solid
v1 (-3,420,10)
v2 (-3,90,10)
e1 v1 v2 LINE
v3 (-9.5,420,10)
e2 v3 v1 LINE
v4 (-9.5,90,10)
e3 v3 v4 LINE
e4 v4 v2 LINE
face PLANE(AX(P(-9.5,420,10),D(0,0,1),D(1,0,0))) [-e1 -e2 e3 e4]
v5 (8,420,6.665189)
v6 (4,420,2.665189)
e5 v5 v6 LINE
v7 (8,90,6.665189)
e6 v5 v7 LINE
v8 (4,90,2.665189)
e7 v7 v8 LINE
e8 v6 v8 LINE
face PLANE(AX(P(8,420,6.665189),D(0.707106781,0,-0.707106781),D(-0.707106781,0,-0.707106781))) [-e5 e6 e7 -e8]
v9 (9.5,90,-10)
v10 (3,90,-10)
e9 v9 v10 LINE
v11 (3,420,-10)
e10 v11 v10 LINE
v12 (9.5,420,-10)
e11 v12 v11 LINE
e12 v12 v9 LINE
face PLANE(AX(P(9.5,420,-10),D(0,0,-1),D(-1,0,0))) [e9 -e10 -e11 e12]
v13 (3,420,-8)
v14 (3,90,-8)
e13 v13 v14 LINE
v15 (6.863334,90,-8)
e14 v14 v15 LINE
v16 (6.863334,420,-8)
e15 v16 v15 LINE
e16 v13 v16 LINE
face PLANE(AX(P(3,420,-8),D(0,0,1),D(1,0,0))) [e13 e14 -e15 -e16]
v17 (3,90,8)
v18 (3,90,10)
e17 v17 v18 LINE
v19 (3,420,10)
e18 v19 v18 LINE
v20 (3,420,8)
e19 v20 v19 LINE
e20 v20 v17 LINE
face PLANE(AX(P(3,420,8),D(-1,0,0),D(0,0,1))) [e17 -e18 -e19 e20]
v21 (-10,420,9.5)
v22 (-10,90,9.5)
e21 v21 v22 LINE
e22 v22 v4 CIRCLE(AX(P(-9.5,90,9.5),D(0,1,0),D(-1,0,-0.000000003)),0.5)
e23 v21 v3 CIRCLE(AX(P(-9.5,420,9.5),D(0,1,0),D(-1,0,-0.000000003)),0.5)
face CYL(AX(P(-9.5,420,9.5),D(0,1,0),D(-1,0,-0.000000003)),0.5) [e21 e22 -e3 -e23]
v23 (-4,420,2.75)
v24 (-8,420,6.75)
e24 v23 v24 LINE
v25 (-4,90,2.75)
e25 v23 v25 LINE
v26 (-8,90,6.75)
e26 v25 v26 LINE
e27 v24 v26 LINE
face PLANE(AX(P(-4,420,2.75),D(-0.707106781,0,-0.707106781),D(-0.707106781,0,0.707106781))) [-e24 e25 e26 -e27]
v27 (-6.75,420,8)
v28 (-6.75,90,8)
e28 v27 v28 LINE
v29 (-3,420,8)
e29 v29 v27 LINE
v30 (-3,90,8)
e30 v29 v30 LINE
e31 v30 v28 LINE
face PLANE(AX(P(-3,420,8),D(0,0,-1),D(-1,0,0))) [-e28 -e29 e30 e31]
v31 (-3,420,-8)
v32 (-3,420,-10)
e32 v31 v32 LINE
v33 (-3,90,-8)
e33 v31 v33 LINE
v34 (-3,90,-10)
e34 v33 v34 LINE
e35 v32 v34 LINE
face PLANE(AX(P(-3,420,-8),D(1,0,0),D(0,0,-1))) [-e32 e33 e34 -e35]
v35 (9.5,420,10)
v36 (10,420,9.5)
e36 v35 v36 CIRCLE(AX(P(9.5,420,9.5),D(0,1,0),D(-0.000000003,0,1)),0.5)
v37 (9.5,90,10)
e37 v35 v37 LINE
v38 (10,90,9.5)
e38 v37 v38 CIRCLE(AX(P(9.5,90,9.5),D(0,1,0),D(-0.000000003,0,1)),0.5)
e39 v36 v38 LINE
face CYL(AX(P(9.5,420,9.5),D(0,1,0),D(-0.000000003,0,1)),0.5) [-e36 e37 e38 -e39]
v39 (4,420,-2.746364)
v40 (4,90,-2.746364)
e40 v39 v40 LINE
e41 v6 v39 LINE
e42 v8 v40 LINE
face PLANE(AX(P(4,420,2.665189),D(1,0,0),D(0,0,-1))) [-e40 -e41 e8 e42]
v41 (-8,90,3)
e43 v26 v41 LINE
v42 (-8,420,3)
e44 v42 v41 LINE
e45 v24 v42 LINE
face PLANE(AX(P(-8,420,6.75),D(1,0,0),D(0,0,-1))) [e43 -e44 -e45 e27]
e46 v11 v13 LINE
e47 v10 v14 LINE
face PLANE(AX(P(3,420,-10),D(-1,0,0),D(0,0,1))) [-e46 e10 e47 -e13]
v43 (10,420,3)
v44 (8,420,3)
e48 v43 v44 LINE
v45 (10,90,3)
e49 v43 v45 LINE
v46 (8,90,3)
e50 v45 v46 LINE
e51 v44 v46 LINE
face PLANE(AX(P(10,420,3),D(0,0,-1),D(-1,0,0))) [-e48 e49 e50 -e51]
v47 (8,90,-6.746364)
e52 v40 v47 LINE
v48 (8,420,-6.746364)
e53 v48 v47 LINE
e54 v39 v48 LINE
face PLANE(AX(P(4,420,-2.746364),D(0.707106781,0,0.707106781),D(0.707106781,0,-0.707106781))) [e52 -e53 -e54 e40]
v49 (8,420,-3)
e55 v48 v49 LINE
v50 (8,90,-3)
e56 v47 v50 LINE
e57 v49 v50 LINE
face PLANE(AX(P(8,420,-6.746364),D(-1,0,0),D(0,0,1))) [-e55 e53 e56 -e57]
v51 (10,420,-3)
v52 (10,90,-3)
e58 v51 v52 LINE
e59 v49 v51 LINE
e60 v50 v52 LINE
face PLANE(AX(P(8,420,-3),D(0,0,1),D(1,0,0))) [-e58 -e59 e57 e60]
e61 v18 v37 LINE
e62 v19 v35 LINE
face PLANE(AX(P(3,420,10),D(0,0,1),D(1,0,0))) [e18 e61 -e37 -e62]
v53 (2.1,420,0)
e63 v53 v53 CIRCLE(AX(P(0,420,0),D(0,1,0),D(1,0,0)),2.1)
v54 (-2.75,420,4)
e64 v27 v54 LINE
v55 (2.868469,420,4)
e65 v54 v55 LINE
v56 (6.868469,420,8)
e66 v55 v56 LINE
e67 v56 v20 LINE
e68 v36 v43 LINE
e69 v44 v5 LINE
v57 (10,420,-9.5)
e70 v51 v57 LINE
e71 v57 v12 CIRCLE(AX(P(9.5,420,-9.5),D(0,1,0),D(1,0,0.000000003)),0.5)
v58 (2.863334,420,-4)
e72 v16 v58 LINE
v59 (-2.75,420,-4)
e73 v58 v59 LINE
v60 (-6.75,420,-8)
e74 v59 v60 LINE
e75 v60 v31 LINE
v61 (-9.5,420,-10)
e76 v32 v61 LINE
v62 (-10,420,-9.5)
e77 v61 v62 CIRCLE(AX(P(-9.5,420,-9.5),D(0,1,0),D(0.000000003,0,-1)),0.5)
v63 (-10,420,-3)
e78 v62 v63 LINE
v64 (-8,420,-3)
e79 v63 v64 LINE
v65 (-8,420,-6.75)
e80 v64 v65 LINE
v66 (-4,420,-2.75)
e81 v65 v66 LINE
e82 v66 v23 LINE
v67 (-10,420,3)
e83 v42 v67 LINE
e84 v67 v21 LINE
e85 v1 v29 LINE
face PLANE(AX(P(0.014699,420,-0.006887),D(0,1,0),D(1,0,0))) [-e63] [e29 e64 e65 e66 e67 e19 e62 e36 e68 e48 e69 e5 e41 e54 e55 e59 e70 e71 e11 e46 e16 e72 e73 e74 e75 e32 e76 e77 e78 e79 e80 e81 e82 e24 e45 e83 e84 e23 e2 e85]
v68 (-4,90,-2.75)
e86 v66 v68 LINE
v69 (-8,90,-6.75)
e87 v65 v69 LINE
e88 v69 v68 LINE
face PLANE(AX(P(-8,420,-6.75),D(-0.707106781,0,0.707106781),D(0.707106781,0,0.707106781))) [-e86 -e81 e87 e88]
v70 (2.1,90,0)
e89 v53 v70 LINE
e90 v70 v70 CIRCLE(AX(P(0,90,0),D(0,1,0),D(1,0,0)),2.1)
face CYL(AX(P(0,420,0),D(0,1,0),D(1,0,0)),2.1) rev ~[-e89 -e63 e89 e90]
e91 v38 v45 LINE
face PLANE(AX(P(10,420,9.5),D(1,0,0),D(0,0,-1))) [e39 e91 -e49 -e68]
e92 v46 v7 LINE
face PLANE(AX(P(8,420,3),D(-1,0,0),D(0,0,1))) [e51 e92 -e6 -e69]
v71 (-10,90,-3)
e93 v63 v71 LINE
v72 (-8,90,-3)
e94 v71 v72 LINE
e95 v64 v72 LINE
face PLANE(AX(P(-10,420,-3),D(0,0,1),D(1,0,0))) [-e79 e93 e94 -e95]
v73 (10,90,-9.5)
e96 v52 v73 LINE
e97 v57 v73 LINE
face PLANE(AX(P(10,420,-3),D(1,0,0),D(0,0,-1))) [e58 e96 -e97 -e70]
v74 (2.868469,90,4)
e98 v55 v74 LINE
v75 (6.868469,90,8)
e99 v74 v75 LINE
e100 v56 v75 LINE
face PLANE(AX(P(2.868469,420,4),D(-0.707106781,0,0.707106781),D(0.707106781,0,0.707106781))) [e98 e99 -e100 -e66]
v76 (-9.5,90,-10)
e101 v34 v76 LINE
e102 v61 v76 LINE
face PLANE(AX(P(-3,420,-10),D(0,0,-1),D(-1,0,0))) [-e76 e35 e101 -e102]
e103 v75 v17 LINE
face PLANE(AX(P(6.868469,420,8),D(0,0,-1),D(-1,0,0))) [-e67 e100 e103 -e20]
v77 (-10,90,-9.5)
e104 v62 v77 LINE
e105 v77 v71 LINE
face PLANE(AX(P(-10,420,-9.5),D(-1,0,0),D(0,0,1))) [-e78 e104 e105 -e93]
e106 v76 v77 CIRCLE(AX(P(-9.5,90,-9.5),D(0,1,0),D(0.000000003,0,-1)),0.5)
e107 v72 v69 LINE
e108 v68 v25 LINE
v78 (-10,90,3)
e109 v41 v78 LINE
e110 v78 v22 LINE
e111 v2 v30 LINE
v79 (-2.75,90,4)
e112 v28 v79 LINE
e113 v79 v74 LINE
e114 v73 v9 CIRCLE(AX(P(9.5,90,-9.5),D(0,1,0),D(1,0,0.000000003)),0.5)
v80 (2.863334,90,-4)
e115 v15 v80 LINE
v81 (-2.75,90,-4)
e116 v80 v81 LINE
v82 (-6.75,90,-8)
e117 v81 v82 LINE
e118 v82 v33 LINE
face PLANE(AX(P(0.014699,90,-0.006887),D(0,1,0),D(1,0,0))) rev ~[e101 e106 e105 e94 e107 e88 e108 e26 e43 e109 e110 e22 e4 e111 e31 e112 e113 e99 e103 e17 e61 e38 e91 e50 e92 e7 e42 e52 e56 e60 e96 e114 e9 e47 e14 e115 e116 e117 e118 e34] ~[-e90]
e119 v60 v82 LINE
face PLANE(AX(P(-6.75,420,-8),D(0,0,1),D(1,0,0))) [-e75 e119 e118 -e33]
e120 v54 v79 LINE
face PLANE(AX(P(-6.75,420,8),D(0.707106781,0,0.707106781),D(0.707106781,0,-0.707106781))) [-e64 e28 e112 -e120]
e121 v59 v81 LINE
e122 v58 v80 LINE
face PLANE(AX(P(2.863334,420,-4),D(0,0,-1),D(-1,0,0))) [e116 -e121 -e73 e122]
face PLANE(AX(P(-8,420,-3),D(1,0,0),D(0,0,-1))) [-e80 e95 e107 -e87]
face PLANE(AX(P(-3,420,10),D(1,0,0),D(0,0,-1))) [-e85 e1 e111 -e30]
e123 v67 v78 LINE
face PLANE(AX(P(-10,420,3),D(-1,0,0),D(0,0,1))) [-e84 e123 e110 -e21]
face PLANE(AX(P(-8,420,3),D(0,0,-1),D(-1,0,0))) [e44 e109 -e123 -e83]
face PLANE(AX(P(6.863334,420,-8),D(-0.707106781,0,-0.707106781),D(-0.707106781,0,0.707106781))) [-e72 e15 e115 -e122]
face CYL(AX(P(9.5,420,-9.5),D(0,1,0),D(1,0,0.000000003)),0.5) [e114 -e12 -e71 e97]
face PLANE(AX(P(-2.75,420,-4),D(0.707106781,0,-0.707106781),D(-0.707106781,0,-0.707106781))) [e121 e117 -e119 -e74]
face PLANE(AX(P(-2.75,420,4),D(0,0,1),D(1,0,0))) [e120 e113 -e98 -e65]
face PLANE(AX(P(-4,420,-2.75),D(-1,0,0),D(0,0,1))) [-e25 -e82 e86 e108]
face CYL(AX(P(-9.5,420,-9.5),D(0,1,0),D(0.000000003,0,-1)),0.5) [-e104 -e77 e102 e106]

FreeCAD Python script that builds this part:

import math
import FreeCAD as App
import Part
import Sketcher
from FreeCAD import Vector

doc = App.newDocument("Part")
body = doc.addObject("PartDesign::Body", "Body")

# Sketch on XZ plane
sketch1 = doc.addObject("Sketcher::SketchObject", "Sketch")
body.addObject(sketch1)
sketch1.AttachmentSupport = (doc.XZ_Plane, [""])
sketch1.MapMode = "FlatFace"
sketch1.AttachmentOffset = App.Placement(Vector(0, 0, -420), App.Rotation())
sketch1.addGeometry([
    Part.LineSegment(Vector(4, -2.75, 0), Vector(8, -6.75, 0)),  # 0
    Part.LineSegment(Vector(8, -6.75, 0), Vector(8, -3, 0)),  # 1
    Part.LineSegment(Vector(8, -3, 0), Vector(10, -3, 0)),  # 2
    Part.LineSegment(Vector(10, -3, 0), Vector(10, -9.5, 0)),  # 3
    Part.ArcOfCircle(Part.Circle(Vector(9.5, -9.5, 0), Vector(0, 0, 1), 0.5), math.radians(-90), math.radians(0)),  # 4
    Part.LineSegment(Vector(9.5, -10, 0), Vector(3, -10, 0)),  # 5
    Part.LineSegment(Vector(3, -10, 0), Vector(3, -8, 0)),  # 6
    Part.LineSegment(Vector(3, -8, 0), Vector(6.86, -8, 0)),  # 7
    Part.LineSegment(Vector(6.86, -8, 0), Vector(2.86, -4, 0)),  # 8
    Part.LineSegment(Vector(2.86, -4, 0), Vector(-2.75, -4, 0)),  # 9
    Part.LineSegment(Vector(-2.75, -4, 0), Vector(-6.75, -8, 0)),  # 10
    Part.LineSegment(Vector(-6.75, -8, 0), Vector(-3, -8, 0)),  # 11
    Part.LineSegment(Vector(-3, -8, 0), Vector(-3, -10, 0)),  # 12
    Part.LineSegment(Vector(-3, -10, 0), Vector(-9.5, -10, 0)),  # 13
    Part.ArcOfCircle(Part.Circle(Vector(-9.5, -9.5, 0), Vector(0, 0, 1), 0.5), math.radians(180), math.radians(270)),  # 14
    Part.LineSegment(Vector(-10, -9.5, 0), Vector(-10, -3, 0)),  # 15
    Part.LineSegment(Vector(-10, -3, 0), Vector(-8, -3, 0)),  # 16
    Part.LineSegment(Vector(-8, -3, 0), Vector(-8, -6.75, 0)),  # 17
    Part.LineSegment(Vector(-8, -6.75, 0), Vector(-4, -2.75, 0)),  # 18
    Part.LineSegment(Vector(-4, -2.75, 0), Vector(-4, 2.75, 0)),  # 19
    Part.LineSegment(Vector(-4, 2.75, 0), Vector(-8, 6.75, 0)),  # 20
    Part.LineSegment(Vector(-8, 6.75, 0), Vector(-8, 3, 0)),  # 21
    Part.LineSegment(Vector(-8, 3, 0), Vector(-10, 3, 0)),  # 22
    Part.LineSegment(Vector(-10, 3, 0), Vector(-10, 9.5, 0)),  # 23
    Part.ArcOfCircle(Part.Circle(Vector(-9.5, 9.5, 0), Vector(0, 0, 1), 0.5), math.radians(90), math.radians(180)),  # 24
    Part.LineSegment(Vector(-9.5, 10, 0), Vector(-3, 10, 0)),  # 25
    Part.LineSegment(Vector(-3, 10, 0), Vector(-3, 8, 0)),  # 26
    Part.LineSegment(Vector(-3, 8, 0), Vector(-6.75, 8, 0)),  # 27
    Part.LineSegment(Vector(-6.75, 8, 0), Vector(-2.75, 4, 0)),  # 28
    Part.LineSegment(Vector(-2.75, 4, 0), Vector(2.87, 4, 0)),  # 29
    Part.LineSegment(Vector(2.87, 4, 0), Vector(6.87, 8, 0)),  # 30
    Part.LineSegment(Vector(6.87, 8, 0), Vector(3, 8, 0)),  # 31
    Part.LineSegment(Vector(3, 8, 0), Vector(3, 10, 0)),  # 32
    Part.LineSegment(Vector(3, 10, 0), Vector(9.5, 10, 0)),  # 33
    Part.ArcOfCircle(Part.Circle(Vector(9.5, 9.5, 0), Vector(0, 0, 1), 0.5), math.radians(0), math.radians(90)),  # 34
    Part.LineSegment(Vector(10, 9.5, 0), Vector(10, 3, 0)),  # 35
    Part.LineSegment(Vector(10, 3, 0), Vector(8, 3, 0)),  # 36
    Part.LineSegment(Vector(8, 3, 0), Vector(8, 6.67, 0)),  # 37
    Part.LineSegment(Vector(8, 6.67, 0), Vector(4, 2.67, 0)),  # 38
    Part.LineSegment(Vector(4, 2.67, 0), Vector(4, -2.75, 0)),  # 39
    Part.Circle(Vector(0, 0, 0), Vector(0, 0, 1), 2.1),  # 40
], False)
sketch1.addConstraint([
    Sketcher.Constraint("Coincident", 0, 2, 1, 1),
    Sketcher.Constraint("Coincident", 1, 2, 2, 1),
    Sketcher.Constraint("Coincident", 2, 2, 3, 1),
    Sketcher.Constraint("Tangent", 3, 2, 4, 2),
    Sketcher.Constraint("Tangent", 4, 1, 5, 1),
    Sketcher.Constraint("Coincident", 5, 2, 6, 1),
    Sketcher.Constraint("Coincident", 6, 2, 7, 1),
    Sketcher.Constraint("Coincident", 7, 2, 8, 1),
    Sketcher.Constraint("Coincident", 8, 2, 9, 1),
    Sketcher.Constraint("Coincident", 9, 2, 10, 1),
    Sketcher.Constraint("Coincident", 10, 2, 11, 1),
    Sketcher.Constraint("Coincident", 11, 2, 12, 1),
    Sketcher.Constraint("Coincident", 12, 2, 13, 1),
    Sketcher.Constraint("Tangent", 13, 2, 14, 2),
    Sketcher.Constraint("Tangent", 14, 1, 15, 1),
    Sketcher.Constraint("Coincident", 15, 2, 16, 1),
    Sketcher.Constraint("Coincident", 16, 2, 17, 1),
    Sketcher.Constraint("Coincident", 17, 2, 18, 1),
    Sketcher.Constraint("Coincident", 18, 2, 19, 1),
    Sketcher.Constraint("Coincident", 19, 2, 20, 1),
    Sketcher.Constraint("Coincident", 20, 2, 21, 1),
    Sketcher.Constraint("Coincident", 21, 2, 22, 1),
    Sketcher.Constraint("Coincident", 22, 2, 23, 1),
    Sketcher.Constraint("Tangent", 23, 2, 24, 2),
    Sketcher.Constraint("Tangent", 24, 1, 25, 1),
    Sketcher.Constraint("Coincident", 25, 2, 26, 1),
    Sketcher.Constraint("Coincident", 26, 2, 27, 1),
    Sketcher.Constraint("Coincident", 27, 2, 28, 1),
    Sketcher.Constraint("Coincident", 28, 2, 29, 1),
    Sketcher.Constraint("Coincident", 29, 2, 30, 1),
    Sketcher.Constraint("Coincident", 30, 2, 31, 1),
    Sketcher.Constraint("Coincident", 31, 2, 32, 1),
    Sketcher.Constraint("Coincident", 32, 2, 33, 1),
    Sketcher.Constraint("Tangent", 33, 2, 34, 2),
    Sketcher.Constraint("Tangent", 34, 1, 35, 1),
    Sketcher.Constraint("Coincident", 35, 2, 36, 1),
    Sketcher.Constraint("Coincident", 36, 2, 37, 1),
    Sketcher.Constraint("Coincident", 37, 2, 38, 1),
    Sketcher.Constraint("Coincident", 38, 2, 39, 1),
    Sketcher.Constraint("Coincident", 39, 2, 0, 1),
    Sketcher.Constraint("Vertical", 1),
    Sketcher.Constraint("Horizontal", 2),
    Sketcher.Constraint("Vertical", 3),
    Sketcher.Constraint("Horizontal", 5),
    Sketcher.Constraint("Vertical", 6),
    Sketcher.Constraint("Horizontal", 7),
    Sketcher.Constraint("Horizontal", 9),
    Sketcher.Constraint("Horizontal", 11),
    Sketcher.Constraint("Vertical", 12),
    Sketcher.Constraint("Horizontal", 13),
    Sketcher.Constraint("Vertical", 15),
    Sketcher.Constraint("Horizontal", 16),
    Sketcher.Constraint("Vertical", 17),
    Sketcher.Constraint("Vertical", 19),
    Sketcher.Constraint("Vertical", 21),
    Sketcher.Constraint("Horizontal", 22),
    Sketcher.Constraint("Vertical", 23),
    Sketcher.Constraint("Horizontal", 25),
    Sketcher.Constraint("Vertical", 26),
    Sketcher.Constraint("Horizontal", 27),
    Sketcher.Constraint("Horizontal", 29),
    Sketcher.Constraint("Horizontal", 31),
    Sketcher.Constraint("Vertical", 32),
    Sketcher.Constraint("Horizontal", 33),
    Sketcher.Constraint("Vertical", 35),
    Sketcher.Constraint("Horizontal", 36),
    Sketcher.Constraint("Vertical", 37),
    Sketcher.Constraint("Vertical", 39),
    Sketcher.Constraint("Coincident", 40, 3, -1, 1),
    Sketcher.Constraint("Equal", 4, 14),
    Sketcher.Constraint("Equal", 14, 24),
    Sketcher.Constraint("Equal", 24, 34),
    Sketcher.Constraint("Symmetric", 4, 3, 24, 3, -1, 1),
    Sketcher.Constraint("Symmetric", 14, 3, 34, 3, -1, 1),
    Sketcher.Constraint("Symmetric", 1, 2, 21, 2, -1, 1),
    Sketcher.Constraint("Symmetric", 6, 2, 26, 2, -1, 1),
    Sketcher.Constraint("Symmetric", 11, 2, 31, 2, -1, 1),
    Sketcher.Constraint("Symmetric", 16, 2, 36, 2, -1, 1),
    Sketcher.Constraint("Symmetric", 4, 3, 14, 3, -2),
    Sketcher.Constraint("Symmetric", 6, 2, 11, 2, -2),
    Sketcher.Constraint("Symmetric", 1, 2, 16, 2, -2),
    Sketcher.Constraint("Symmetric", 9, 2, 28, 2, -1),
    Sketcher.Constraint("Parallel", 0, 8),
    Sketcher.Constraint("Perpendicular", 8, 10),
    Sketcher.Constraint("Parallel", 10, 18),
    Sketcher.Constraint("Perpendicular", 18, 20),
    Sketcher.Constraint("Parallel", 20, 28),
    Sketcher.Constraint("Perpendicular", 28, 30),
    Sketcher.Constraint("Parallel", 30, 38),
    Sketcher.Constraint("Vertical", 10, 2, 27, 2),
    Sketcher.Constraint("Equal", 33, 3),
    Sketcher.Constraint("Equal", 36, 6),
    Sketcher.Constraint("Equal", 27, 17),
    Sketcher.Constraint("Equal", 17, 21),
    Sketcher.Constraint("Equal", 0, 8),
    Sketcher.Constraint("Equal", 10, 18),
    Sketcher.Constraint("Diameter", 40, 4.2),
    Sketcher.Constraint("Radius", 4, 0.5),
    Sketcher.Constraint("DistanceX", 2, 1, 2, 2, 2.0),
    Sketcher.Constraint("DistanceX", 5, 2, 5, 1, 6.5),
    Sketcher.Constraint("DistanceY", 19, 1, 19, 2, 5.5),
    Sketcher.Constraint("DistanceX", -1, 1, 0, 2, 8.0),
    Sketcher.Constraint("DistanceY", 1, 2, -1, 1, 3.0),
    Sketcher.Constraint("DistanceY", 8, 2, -1, 1, 4.0),
    Sketcher.Constraint("DistanceX", 29, 1, 29, 2, 5.618469),
    Sketcher.Constraint("DistanceY", 37, 1, 37, 2, 3.665189),
    Sketcher.Constraint("DistanceX", 7, 1, 7, 2, 3.863334),
    Sketcher.Constraint("DistanceY", 1, 1, 1, 2, 3.746364),
])
pad1 = doc.addObject("PartDesign::Pad", "Pad")
body.addObject(pad1)
pad1.Profile = sketch1
pad1.Length = 330

doc.recompute()
